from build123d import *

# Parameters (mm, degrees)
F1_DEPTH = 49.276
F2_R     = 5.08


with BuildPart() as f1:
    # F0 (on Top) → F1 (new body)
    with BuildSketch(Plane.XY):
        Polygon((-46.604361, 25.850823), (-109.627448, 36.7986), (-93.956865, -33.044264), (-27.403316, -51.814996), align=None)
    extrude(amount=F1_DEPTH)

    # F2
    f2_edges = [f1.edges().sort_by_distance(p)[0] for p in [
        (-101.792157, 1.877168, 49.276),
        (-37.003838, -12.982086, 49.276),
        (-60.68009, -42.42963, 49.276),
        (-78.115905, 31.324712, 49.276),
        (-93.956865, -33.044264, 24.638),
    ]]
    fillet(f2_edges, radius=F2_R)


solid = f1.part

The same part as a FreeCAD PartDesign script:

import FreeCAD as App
import Part
import Sketcher

V = App.Vector
Q = App.Units.Quantity


def edges_at(feature, points):
    """Names of the edges that pass closest to the given points."""
    edges = feature.Shape.Edges
    near = lambda p: min(range(len(edges)), key=lambda i: edges[i].distToShape(Part.Vertex(*p))[0])
    return sorted({f"Edge{near(p) + 1}" for p in points})


def add_polygon(sketch, points):
    """Adds a closed chain of lines whose ends are joined by coincident constraints."""
    first, n = sketch.GeometryCount, len(points)
    for a, b in zip(points, points[1:] + points[:1]):
        sketch.addGeometry(Part.LineSegment(App.Vector(*a, 0), App.Vector(*b, 0)), False)
    for i in range(n):
        sketch.addConstraint(Sketcher.Constraint("Coincident", first + i, 2, first + (i + 1) % n, 1))

doc = App.newDocument("Part")
body = doc.addObject("PartDesign::Body", "Body")

sketch1 = body.newObject("Sketcher::SketchObject", "Sketch")
sketch1.AttachmentSupport = (doc.getObject("XY_Plane"), [""])
sketch1.MapMode = "FlatFace"
add_polygon(sketch1, [(-47, 26), (-110, 37), (-94, -33), (-27, -52)])
sketch1.addConstraint([
    Sketcher.Constraint("DistanceY", -1, 1, 0, 2, Q("36.7986 mm")),
    Sketcher.Constraint("DistanceX", 0, 2, -1, 1, Q("109.627448 mm")),
    Sketcher.Constraint("DistanceX", 3, 2, -1, 1, Q("46.604361 mm")),
    Sketcher.Constraint("DistanceX", 1, 2, 2, 2, Q("66.553549 mm")),
    Sketcher.Constraint("DistanceX", 0, 2, 2, 2, Q("82.224132 mm")),
    Sketcher.Constraint("DistanceY", 2, 2, 3, 2, Q("77.665819 mm")),
    Sketcher.Constraint("Distance", 0, Q("63.966892 mm")),
    Sketcher.Constraint("Distance", 1, Q("71.579276 mm")),
])
pad1 = body.newObject("PartDesign::Pad", "Pad")
pad1.Profile = sketch1
pad1.Length = Q("1.94 in")
doc.recompute()

fillet = body.newObject("PartDesign::Fillet", "Fillet")
fillet.Base = (pad1, edges_at(pad1, [
    (-101.792, 1.877, 49.276),
    (-37.004, -12.982, 49.276),
    (-60.68, -42.43, 49.276),
    (-78.116, 31.325, 49.276),
    (-93.957, -33.044, 24.638),
]))
fillet.Radius = Q("0.2 in")

doc.recompute()
